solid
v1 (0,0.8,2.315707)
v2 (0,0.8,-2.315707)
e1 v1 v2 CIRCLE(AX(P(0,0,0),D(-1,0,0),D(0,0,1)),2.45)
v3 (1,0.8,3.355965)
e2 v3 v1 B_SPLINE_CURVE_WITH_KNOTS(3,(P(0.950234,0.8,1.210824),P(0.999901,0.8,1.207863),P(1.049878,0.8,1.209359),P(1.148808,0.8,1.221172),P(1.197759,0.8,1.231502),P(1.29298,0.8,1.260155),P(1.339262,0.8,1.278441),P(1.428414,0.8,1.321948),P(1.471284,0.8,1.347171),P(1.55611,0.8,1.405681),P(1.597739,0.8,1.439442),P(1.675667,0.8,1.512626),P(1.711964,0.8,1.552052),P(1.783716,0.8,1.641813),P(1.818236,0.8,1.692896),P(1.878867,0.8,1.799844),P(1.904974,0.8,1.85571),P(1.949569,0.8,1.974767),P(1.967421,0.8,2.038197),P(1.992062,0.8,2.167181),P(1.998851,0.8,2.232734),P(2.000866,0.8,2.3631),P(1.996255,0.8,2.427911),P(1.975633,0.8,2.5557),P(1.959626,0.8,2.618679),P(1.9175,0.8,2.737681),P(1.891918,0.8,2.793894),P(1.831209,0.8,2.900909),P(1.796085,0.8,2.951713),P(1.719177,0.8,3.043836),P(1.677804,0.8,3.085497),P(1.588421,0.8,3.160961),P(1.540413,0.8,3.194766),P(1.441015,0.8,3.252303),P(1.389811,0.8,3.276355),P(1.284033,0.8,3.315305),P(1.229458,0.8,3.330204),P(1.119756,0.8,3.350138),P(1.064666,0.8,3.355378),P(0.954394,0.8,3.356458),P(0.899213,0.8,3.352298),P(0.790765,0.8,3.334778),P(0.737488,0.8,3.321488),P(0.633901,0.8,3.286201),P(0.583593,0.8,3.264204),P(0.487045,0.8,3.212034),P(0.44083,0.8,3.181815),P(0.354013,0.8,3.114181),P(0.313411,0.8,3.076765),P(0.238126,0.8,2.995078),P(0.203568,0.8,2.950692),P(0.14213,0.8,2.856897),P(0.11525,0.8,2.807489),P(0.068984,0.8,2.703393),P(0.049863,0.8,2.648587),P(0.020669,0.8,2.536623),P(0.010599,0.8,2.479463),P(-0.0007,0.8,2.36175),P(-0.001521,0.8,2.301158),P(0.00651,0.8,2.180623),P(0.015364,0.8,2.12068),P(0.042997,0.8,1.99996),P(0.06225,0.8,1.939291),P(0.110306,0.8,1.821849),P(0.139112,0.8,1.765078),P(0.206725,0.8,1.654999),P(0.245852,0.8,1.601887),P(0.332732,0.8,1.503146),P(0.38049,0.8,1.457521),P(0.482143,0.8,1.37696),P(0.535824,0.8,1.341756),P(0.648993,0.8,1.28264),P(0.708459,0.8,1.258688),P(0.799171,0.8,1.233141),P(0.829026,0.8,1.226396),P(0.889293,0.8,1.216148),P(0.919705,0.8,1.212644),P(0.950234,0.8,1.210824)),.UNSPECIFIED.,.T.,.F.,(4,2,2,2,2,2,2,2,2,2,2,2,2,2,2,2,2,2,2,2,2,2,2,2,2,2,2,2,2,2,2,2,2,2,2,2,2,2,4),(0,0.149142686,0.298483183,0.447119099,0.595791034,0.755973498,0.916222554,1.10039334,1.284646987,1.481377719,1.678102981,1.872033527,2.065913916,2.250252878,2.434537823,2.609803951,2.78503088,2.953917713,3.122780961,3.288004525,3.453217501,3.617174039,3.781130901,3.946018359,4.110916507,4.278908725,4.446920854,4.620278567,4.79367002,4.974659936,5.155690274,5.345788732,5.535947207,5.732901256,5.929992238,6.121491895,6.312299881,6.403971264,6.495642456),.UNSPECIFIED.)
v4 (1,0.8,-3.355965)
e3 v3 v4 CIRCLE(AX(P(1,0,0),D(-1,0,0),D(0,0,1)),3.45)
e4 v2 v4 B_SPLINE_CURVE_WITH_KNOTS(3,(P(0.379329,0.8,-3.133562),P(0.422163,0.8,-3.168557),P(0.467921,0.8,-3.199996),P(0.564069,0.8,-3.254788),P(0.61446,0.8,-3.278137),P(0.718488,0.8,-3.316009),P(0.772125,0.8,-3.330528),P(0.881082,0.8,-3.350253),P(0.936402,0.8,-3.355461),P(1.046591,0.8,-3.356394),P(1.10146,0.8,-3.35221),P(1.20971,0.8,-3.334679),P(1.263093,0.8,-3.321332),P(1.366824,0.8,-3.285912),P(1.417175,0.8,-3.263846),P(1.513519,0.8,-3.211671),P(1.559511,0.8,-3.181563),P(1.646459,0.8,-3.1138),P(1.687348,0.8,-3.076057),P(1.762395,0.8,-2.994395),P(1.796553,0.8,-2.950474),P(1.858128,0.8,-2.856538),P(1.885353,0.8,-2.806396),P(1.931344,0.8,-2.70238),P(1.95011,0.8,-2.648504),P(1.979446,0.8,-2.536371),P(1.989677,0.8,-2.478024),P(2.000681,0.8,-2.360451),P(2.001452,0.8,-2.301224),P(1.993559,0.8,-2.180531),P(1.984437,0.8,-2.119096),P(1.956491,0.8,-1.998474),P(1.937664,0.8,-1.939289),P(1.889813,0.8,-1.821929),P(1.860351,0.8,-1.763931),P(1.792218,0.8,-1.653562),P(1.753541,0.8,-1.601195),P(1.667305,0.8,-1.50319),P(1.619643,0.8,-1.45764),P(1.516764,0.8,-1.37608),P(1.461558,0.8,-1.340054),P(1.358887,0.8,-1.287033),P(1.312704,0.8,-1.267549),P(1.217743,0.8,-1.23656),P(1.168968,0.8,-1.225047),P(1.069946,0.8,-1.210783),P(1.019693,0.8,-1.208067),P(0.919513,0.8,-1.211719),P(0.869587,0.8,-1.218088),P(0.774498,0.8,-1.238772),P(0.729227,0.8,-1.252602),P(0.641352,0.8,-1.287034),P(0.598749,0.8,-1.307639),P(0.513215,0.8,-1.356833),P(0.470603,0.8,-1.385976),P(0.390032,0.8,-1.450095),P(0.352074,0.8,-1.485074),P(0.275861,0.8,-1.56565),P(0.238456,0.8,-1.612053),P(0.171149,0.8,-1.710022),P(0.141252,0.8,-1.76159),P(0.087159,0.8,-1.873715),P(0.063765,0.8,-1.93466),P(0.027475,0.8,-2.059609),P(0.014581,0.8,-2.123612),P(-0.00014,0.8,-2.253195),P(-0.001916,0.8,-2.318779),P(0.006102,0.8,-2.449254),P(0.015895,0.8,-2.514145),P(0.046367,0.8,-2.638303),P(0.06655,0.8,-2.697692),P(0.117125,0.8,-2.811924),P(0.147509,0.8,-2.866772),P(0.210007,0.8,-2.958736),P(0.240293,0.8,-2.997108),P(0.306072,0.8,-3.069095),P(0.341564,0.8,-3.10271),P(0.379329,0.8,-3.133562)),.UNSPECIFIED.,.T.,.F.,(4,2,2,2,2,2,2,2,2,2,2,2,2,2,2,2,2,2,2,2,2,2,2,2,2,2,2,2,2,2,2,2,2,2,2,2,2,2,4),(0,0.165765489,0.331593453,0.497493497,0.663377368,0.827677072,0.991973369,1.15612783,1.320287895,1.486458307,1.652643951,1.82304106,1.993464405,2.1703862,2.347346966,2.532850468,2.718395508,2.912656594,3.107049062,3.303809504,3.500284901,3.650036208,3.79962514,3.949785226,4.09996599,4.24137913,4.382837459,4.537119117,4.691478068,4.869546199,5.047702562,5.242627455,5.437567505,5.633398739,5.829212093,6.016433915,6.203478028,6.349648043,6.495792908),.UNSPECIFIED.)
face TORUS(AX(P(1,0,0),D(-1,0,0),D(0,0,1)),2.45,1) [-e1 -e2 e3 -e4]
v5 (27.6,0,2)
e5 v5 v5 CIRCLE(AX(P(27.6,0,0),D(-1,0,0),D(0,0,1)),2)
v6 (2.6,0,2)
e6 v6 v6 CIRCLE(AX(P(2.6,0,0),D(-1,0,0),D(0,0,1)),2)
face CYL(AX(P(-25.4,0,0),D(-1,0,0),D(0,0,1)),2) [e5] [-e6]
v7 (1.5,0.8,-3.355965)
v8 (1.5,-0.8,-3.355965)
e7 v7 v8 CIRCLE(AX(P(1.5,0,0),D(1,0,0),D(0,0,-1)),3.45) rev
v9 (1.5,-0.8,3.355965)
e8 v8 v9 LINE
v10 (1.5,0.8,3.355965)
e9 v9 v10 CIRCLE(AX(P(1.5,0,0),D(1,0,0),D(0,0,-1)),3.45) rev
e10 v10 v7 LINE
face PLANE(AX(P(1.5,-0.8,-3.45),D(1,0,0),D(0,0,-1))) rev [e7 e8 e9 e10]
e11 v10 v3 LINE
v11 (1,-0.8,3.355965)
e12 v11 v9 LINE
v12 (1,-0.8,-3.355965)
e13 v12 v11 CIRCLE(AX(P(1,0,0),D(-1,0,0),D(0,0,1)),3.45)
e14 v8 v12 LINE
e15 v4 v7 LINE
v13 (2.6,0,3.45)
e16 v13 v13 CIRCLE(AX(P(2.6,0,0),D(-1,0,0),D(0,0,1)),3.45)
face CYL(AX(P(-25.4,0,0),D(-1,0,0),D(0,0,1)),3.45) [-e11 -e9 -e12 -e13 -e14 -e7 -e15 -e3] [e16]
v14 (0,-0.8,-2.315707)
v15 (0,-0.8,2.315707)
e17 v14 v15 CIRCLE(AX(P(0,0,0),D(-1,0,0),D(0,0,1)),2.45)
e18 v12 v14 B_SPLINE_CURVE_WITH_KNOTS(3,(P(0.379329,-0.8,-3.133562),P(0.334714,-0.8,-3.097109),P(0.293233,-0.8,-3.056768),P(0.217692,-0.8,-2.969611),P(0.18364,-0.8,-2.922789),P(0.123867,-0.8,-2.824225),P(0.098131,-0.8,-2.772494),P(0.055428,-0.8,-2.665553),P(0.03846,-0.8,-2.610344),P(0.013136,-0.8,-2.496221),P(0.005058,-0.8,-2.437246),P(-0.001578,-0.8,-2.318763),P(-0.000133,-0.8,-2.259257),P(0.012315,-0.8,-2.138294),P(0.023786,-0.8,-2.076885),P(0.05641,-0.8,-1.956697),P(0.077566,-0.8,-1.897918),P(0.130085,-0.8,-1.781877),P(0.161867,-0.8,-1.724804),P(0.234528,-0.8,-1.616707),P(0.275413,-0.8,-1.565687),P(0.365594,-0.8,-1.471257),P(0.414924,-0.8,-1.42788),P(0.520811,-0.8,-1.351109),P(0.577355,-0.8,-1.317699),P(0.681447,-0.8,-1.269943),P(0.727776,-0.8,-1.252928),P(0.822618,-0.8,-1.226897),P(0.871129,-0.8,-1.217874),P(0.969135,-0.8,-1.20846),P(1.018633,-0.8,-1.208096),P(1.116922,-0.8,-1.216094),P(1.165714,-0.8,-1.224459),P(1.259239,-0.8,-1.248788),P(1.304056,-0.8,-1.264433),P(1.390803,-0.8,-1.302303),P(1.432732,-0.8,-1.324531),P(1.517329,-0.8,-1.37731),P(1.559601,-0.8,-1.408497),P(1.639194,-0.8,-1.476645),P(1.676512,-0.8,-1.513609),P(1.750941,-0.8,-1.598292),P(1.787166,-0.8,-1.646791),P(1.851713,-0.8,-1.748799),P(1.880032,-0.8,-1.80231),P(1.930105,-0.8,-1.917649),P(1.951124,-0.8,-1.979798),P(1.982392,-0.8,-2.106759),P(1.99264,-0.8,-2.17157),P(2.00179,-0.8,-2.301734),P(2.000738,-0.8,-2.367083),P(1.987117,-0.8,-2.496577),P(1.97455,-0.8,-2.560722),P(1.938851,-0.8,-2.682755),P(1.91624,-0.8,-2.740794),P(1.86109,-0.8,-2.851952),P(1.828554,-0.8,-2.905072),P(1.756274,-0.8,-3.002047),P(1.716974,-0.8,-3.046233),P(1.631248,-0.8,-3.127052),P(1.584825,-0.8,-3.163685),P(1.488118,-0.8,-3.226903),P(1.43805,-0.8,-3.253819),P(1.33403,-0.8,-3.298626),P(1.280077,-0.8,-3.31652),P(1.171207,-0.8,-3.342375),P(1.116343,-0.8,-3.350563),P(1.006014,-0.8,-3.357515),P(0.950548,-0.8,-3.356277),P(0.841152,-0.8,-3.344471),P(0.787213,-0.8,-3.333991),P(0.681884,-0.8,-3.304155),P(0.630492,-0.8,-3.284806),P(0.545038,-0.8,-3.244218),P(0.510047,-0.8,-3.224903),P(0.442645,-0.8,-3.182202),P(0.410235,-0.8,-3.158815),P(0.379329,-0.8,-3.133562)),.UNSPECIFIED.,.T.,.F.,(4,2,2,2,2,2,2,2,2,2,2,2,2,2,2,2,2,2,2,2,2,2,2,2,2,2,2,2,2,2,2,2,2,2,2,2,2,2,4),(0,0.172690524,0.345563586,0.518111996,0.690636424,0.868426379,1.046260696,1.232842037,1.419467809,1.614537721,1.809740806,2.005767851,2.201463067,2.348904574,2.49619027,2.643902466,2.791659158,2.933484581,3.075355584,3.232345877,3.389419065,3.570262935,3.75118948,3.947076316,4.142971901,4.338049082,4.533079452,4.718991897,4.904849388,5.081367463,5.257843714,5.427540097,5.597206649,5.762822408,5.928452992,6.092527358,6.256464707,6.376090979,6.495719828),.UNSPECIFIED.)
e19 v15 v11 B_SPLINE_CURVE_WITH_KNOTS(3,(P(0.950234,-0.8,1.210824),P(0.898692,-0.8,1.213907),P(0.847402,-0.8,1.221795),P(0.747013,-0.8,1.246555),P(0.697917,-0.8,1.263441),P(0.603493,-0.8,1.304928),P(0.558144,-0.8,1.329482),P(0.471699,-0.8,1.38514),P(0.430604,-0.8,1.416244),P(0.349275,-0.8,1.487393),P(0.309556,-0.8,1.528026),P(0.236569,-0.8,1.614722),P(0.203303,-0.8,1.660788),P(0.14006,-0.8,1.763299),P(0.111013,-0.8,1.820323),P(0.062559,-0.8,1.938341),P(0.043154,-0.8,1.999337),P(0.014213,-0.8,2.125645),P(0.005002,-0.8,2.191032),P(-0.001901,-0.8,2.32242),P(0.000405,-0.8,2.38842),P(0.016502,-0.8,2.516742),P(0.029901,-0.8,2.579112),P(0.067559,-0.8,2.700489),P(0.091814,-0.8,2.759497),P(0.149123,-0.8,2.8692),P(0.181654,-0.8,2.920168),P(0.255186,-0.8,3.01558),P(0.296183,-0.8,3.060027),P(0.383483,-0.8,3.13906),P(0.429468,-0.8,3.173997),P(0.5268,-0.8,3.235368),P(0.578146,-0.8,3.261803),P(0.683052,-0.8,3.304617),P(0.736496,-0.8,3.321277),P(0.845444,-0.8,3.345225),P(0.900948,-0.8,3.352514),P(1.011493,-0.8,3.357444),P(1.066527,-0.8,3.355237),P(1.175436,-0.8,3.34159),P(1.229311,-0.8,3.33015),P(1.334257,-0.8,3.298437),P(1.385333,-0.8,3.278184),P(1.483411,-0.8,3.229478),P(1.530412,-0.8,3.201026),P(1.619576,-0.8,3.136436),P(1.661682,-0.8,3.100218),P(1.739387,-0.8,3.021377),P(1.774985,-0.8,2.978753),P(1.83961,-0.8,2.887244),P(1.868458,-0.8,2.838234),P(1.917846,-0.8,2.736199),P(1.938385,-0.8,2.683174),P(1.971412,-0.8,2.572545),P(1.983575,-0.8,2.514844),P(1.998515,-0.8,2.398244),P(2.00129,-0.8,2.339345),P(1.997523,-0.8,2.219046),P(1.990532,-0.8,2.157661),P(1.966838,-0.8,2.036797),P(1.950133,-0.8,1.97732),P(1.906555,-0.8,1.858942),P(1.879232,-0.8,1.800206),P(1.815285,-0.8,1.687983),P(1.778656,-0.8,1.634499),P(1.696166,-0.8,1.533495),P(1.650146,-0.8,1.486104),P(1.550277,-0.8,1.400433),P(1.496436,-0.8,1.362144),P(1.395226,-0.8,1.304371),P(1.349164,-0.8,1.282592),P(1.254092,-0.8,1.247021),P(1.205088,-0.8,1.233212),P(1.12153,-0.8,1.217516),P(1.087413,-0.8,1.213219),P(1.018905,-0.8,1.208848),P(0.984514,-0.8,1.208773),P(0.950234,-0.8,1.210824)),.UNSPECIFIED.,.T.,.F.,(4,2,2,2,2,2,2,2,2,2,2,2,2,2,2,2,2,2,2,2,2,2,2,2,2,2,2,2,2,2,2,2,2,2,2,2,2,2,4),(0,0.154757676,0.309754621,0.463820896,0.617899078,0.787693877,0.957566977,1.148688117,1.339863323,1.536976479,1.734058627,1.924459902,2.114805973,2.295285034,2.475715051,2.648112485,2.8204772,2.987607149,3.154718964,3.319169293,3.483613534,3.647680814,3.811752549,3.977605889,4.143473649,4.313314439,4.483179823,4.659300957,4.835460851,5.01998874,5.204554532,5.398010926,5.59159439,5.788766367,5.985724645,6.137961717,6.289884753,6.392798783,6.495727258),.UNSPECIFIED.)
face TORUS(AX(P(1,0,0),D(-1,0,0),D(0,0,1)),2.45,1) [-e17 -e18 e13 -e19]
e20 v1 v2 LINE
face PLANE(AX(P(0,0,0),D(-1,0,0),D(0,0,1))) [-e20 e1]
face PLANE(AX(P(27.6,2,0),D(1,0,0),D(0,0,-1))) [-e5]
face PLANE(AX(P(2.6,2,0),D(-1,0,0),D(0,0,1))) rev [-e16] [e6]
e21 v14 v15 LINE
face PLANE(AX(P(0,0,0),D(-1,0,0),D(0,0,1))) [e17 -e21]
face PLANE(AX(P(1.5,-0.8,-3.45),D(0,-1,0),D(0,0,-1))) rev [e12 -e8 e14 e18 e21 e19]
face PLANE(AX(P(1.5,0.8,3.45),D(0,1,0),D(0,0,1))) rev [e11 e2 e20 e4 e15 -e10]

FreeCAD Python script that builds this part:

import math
import FreeCAD as App
import Part
import Sketcher
from FreeCAD import Vector
Q = App.Units.Quantity


def add_polygon(sketch, points):
    """Adds a closed chain of lines whose ends are joined by coincident constraints."""
    first, n = sketch.GeometryCount, len(points)
    for a, b in zip(points, points[1:] + points[:1]):
        sketch.addGeometry(Part.LineSegment(App.Vector(*a, 0), App.Vector(*b, 0)), False)
    for i in range(n):
        sketch.addConstraint(Sketcher.Constraint("Coincident", first + i, 2, first + (i + 1) % n, 1))

doc = App.newDocument("Part")
body = doc.addObject("PartDesign::Body", "Body")

# Sketch on XY plane
sketch1 = body.newObject("Sketcher::SketchObject", "Sketch")
sketch1.AttachmentSupport = (doc.getObject("XY_Plane"), [""])
sketch1.MapMode = "FlatFace"
sketch1.addGeometry([
    Part.LineSegment(Vector(2.6, 2, 0), Vector(2.6, 3.5, 0)),  # 0
    Part.LineSegment(Vector(2.6, 3.5, 0), Vector(1, 3.5, 0)),  # 1
    Part.ArcOfCircle(Part.Circle(Vector(1, 2.4, 0), Vector(0, 0, 1), 1), math.radians(90), math.radians(180)),  # 2
    Part.LineSegment(Vector(0, 2.5, 0), Vector(0, 0, 0)),  # 3
    Part.LineSegment(Vector(0, 0, 0), Vector(27.6, 0, 0)),  # 4
    Part.LineSegment(Vector(27.6, 0, 0), Vector(27.6, 2, 0)),  # 5
    Part.LineSegment(Vector(27.6, 2, 0), Vector(2.6, 2, 0)),  # 6
], False)
sketch1.addConstraint([
    Sketcher.Constraint("Coincident", 0, 2, 1, 1),
    Sketcher.Constraint("Tangent", 1, 2, 2, 1),
    Sketcher.Constraint("Tangent", 2, 2, 3, 1),
    Sketcher.Constraint("Coincident", 3, 2, 4, 1),
    Sketcher.Constraint("Coincident", 4, 2, 5, 1),
    Sketcher.Constraint("Coincident", 5, 2, 6, 1),
    Sketcher.Constraint("Coincident", 6, 2, 0, 1),
    Sketcher.Constraint("Vertical", 0),
    Sketcher.Constraint("Horizontal", 1),
    Sketcher.Constraint("Vertical", 3),
    Sketcher.Constraint("Horizontal", 4),
    Sketcher.Constraint("Vertical", 5),
    Sketcher.Constraint("Horizontal", 6),
    Sketcher.Constraint("Coincident", 3, 2, -1, 1),
    Sketcher.Constraint("Radius", 2, Q("1 mm")),
    Sketcher.Constraint("DistanceX", 6, 2, 6, 1, Q("25 mm")),
    Sketcher.Constraint("DistanceY", 5, 1, 5, 2, Q("2 mm")),
    Sketcher.Constraint("DistanceX", 1, 2, 1, 1, Q("1.6 mm")),
    Sketcher.Constraint("DistanceY", 0, 1, 0, 2, Q("1.45 mm")),
])
revolution = body.newObject("PartDesign::Revolution", "Revolution")
revolution.Profile = sketch1
revolution.ReferenceAxis = (sketch1, ["H_Axis"])
revolution.Angle = 360

# Sketch on YZ plane
sketch2 = body.newObject("Sketcher::SketchObject", "Sketch001")
sketch2.AttachmentSupport = (doc.getObject("YZ_Plane"), [""])
sketch2.MapMode = "FlatFace"
add_polygon(sketch2, [(0.8, 3.5), (-0.8, 3.5), (-0.8, -3.5), (0.8, -3.5)])  # lines 0-3
sketch2.addConstraint([
    Sketcher.Constraint("Horizontal", 0),
    Sketcher.Constraint("Vertical", 1),
    Sketcher.Constraint("Horizontal", 2),
    Sketcher.Constraint("Vertical", 3),
    Sketcher.Constraint("Symmetric", 0, 2, 2, 2, -1, 1),
    Sketcher.Constraint("DistanceX", 0, 2, 0, 1, Q("1.6 mm")),
    Sketcher.Constraint("DistanceY", 1, 2, 1, 1, Q("6.9 mm")),
])
pocket1 = body.newObject("PartDesign::Pocket", "Pocket")
pocket1.Profile = sketch2
pocket1.Length = 1.5
pocket1.Reversed = True

doc.recompute()
